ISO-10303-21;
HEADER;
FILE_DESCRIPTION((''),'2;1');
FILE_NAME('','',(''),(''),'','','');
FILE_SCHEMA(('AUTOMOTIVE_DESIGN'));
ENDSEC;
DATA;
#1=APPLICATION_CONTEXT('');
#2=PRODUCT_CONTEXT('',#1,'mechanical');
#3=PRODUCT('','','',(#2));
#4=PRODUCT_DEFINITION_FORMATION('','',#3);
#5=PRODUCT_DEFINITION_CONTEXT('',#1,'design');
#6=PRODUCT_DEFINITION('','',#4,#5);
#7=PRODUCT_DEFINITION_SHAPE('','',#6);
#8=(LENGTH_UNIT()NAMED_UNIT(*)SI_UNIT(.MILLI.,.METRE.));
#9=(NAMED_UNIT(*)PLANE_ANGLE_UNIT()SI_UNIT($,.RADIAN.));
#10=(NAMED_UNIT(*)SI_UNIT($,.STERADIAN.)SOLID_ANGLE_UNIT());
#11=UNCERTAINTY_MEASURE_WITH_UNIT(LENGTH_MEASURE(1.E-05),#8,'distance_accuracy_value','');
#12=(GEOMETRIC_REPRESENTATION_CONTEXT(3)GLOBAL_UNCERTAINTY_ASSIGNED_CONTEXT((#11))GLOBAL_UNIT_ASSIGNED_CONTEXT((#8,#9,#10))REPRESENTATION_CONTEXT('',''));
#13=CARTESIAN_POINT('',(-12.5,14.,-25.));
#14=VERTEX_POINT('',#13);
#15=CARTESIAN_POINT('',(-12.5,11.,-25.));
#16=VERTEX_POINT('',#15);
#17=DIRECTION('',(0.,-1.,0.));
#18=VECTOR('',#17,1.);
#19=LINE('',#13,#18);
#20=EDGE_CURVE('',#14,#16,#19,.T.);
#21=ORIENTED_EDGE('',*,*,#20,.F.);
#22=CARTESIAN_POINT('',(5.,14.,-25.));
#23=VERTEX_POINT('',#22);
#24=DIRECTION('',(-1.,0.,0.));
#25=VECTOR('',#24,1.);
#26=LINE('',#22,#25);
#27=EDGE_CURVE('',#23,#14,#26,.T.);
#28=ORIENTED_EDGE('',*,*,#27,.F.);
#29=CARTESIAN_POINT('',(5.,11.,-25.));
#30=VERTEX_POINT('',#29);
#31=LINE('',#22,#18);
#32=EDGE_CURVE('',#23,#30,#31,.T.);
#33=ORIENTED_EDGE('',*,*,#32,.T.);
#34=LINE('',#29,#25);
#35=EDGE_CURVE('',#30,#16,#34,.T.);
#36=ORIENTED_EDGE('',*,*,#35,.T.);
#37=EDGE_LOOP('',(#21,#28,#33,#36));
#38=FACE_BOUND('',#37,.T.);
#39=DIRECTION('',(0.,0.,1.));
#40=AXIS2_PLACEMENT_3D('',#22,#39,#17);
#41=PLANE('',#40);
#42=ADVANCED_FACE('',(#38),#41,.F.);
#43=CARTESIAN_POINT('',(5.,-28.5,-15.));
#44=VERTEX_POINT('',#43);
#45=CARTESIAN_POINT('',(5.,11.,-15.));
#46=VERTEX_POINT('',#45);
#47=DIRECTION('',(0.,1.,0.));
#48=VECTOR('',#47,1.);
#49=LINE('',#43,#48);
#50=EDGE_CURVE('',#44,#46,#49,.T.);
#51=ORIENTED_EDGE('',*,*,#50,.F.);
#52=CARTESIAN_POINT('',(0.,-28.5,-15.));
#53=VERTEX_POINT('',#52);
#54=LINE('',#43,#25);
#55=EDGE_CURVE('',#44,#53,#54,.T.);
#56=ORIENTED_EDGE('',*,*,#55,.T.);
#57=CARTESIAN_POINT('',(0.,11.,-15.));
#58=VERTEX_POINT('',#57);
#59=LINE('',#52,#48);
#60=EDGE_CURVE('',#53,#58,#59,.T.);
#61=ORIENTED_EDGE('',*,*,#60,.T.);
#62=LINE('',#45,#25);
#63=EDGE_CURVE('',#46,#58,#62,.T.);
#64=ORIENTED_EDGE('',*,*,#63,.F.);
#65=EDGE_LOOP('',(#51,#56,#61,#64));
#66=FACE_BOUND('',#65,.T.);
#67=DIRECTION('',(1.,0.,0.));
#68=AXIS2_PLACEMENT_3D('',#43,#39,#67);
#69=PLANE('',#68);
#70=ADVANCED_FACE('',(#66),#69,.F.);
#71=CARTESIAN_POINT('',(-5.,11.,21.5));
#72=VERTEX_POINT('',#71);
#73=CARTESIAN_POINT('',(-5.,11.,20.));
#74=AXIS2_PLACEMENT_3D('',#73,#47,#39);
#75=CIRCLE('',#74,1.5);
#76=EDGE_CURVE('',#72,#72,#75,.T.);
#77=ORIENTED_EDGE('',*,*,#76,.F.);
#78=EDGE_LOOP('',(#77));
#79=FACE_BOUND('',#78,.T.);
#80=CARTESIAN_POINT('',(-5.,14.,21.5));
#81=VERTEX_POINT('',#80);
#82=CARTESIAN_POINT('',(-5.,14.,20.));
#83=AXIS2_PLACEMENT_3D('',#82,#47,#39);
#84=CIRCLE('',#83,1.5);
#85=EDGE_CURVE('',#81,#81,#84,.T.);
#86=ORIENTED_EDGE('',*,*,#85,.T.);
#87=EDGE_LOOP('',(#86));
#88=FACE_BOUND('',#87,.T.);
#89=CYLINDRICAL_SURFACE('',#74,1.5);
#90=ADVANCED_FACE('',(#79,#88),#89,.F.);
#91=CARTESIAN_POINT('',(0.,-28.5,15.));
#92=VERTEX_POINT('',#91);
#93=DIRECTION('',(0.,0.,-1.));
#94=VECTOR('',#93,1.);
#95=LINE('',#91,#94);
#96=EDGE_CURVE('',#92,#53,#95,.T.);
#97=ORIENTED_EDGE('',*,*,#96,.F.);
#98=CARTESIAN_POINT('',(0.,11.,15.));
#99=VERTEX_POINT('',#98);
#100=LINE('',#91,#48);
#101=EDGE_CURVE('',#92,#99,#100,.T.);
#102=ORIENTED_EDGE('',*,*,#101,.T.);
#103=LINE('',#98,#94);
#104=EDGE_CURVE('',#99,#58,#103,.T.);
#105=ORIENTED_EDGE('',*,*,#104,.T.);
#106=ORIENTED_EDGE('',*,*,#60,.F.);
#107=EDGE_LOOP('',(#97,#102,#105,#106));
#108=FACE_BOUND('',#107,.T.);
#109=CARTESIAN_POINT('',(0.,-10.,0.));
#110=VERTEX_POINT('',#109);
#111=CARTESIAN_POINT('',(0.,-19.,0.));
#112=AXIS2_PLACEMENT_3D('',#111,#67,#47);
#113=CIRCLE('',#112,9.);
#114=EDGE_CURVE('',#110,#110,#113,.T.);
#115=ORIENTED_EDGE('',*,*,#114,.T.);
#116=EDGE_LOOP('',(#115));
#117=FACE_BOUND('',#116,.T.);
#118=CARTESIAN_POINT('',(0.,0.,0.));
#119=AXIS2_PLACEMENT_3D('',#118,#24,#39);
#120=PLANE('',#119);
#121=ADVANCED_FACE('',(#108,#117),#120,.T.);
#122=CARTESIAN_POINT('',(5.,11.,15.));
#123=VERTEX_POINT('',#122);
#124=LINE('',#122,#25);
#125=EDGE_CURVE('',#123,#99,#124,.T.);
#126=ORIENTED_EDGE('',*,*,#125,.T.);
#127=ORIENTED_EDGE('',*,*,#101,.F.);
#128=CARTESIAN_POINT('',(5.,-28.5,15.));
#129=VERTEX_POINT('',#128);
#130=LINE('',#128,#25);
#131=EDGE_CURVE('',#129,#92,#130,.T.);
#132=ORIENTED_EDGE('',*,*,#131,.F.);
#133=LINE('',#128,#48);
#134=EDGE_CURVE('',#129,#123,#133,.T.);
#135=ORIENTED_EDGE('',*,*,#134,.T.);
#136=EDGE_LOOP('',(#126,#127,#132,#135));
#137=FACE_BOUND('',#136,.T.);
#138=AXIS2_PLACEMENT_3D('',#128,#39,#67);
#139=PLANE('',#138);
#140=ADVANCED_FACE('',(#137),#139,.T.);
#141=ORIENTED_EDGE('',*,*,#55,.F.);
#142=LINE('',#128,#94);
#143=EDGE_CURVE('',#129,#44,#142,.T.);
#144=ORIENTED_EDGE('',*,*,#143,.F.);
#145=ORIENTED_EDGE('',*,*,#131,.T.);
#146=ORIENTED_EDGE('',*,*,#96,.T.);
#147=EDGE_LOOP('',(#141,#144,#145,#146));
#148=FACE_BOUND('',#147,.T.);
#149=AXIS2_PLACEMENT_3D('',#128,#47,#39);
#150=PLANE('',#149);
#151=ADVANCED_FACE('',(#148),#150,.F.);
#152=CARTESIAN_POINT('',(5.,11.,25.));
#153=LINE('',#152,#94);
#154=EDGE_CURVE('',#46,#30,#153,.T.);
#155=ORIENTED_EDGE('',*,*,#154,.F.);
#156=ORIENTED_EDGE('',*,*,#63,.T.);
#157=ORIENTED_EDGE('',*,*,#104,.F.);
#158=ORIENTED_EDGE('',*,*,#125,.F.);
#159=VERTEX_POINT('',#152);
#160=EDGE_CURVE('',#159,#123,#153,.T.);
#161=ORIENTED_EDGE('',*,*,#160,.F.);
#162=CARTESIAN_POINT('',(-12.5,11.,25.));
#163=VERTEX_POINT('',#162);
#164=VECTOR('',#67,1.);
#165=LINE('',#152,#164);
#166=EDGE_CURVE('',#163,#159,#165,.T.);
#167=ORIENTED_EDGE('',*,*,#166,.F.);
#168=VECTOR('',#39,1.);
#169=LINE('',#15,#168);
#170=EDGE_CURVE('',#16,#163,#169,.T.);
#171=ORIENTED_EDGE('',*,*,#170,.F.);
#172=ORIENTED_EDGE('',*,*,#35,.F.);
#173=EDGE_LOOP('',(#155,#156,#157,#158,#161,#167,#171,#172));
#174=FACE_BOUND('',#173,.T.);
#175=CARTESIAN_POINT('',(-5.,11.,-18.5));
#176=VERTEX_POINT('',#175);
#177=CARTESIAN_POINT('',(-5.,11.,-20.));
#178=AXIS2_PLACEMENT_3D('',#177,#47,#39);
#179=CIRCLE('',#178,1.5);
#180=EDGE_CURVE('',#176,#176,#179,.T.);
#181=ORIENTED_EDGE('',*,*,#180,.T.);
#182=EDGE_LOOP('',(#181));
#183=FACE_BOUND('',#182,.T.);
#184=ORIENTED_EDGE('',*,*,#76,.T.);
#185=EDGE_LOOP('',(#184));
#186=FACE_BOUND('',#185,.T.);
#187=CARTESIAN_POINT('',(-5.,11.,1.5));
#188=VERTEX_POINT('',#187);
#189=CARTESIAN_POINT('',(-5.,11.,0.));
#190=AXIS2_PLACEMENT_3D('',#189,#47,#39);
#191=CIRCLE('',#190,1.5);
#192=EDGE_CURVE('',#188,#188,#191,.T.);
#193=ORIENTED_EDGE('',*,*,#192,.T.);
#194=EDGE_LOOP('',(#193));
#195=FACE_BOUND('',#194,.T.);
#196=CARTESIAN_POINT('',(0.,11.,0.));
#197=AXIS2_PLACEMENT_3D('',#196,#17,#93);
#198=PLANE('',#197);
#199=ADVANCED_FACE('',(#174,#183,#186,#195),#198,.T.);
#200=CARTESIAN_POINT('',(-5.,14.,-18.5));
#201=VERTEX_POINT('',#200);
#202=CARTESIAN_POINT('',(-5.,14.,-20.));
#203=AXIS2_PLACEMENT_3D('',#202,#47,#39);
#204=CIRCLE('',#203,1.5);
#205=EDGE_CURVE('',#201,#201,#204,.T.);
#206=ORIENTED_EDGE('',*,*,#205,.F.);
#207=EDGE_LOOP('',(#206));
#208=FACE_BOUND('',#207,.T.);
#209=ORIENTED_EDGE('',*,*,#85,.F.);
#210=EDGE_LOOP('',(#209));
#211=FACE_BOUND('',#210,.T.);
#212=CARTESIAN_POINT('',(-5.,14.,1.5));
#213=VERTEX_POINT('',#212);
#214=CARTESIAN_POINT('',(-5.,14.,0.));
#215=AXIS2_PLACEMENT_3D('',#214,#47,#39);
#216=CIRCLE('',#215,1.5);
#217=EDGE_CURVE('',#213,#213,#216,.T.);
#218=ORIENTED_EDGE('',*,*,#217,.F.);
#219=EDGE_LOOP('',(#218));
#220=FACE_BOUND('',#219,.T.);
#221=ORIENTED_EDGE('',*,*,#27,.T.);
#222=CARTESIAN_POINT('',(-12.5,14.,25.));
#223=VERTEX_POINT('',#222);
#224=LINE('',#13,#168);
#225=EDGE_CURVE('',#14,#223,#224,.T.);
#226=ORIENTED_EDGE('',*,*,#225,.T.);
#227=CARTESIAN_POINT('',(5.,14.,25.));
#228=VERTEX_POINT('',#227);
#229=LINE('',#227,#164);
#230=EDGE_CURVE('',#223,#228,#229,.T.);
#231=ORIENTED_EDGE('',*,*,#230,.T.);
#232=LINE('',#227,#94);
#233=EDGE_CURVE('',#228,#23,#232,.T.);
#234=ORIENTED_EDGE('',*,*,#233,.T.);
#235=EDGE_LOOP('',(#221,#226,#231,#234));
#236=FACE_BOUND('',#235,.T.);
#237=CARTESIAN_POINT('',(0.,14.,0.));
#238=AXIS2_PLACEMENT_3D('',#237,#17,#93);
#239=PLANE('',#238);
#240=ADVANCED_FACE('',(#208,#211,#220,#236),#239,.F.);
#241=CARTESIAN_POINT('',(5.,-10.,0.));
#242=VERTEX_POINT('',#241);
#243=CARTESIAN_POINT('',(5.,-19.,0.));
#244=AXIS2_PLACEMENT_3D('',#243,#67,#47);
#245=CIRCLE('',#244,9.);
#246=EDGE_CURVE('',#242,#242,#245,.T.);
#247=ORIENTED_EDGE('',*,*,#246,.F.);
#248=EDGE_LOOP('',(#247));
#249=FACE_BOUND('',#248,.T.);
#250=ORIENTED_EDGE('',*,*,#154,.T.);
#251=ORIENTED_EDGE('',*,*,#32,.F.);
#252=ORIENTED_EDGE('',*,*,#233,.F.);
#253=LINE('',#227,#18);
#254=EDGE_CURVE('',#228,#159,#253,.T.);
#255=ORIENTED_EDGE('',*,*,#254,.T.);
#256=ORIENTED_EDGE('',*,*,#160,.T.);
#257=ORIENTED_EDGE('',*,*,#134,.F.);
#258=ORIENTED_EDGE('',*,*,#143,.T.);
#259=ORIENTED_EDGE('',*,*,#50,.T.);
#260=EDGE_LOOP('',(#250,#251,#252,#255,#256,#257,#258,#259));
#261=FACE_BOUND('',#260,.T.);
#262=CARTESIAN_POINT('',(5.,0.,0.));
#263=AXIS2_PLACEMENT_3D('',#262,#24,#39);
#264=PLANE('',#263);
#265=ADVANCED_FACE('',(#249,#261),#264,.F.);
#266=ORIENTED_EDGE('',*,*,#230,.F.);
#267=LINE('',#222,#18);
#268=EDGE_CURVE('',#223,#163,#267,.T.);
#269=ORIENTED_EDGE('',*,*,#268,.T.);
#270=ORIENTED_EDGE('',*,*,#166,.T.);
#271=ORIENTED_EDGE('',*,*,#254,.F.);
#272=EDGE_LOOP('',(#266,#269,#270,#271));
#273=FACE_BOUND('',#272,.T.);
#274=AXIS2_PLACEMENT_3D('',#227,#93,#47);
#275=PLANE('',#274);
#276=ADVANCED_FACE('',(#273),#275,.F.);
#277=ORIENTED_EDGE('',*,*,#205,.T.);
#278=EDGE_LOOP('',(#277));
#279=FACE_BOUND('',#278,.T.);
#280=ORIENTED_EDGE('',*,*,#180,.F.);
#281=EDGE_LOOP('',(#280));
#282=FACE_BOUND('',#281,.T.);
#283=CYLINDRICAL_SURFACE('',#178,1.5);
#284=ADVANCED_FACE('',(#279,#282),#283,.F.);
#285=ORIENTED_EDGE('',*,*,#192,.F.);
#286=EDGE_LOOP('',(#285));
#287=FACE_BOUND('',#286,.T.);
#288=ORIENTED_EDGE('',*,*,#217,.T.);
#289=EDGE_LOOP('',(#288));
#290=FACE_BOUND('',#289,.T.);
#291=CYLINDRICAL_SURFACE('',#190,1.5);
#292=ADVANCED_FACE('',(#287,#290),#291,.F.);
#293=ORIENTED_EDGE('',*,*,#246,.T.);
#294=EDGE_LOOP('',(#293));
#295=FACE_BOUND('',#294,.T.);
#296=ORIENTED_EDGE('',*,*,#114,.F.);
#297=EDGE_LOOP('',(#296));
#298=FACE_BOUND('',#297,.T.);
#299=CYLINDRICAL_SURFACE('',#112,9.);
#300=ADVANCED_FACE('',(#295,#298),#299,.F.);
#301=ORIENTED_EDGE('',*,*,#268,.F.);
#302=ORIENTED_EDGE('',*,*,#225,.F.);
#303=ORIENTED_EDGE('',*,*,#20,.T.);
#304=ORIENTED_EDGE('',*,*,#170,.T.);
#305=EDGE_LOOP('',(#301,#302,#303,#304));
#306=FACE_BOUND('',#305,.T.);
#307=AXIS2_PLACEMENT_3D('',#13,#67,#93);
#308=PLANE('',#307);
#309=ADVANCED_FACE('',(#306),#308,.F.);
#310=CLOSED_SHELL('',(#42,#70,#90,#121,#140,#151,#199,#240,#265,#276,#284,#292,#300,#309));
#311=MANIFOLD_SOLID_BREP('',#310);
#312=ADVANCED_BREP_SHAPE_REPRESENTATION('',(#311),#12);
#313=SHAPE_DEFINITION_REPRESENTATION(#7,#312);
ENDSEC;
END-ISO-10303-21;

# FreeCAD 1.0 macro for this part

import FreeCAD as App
import Part
import Sketcher
Q = App.Units.Quantity


def add_polygon(sketch, points):
    """Adds a closed chain of lines whose ends are joined by coincident constraints."""
    first, n = sketch.GeometryCount, len(points)
    for a, b in zip(points, points[1:] + points[:1]):
        sketch.addGeometry(Part.LineSegment(App.Vector(*a, 0), App.Vector(*b, 0)), False)
    for i in range(n):
        sketch.addConstraint(Sketcher.Constraint("Coincident", first + i, 2, first + (i + 1) % n, 1))

doc = App.newDocument("Part")
params = doc.addObject("Spreadsheet::Sheet", "Params")
for row, (alias, value) in enumerate([
    ("sketch1_height", "30 mm"),
    ("sketch1_width", "39.5 mm"),
    ("pad1_length", "5 mm"),
    ("sketch2_diameter", "18 mm"),
    ("pocket1_length", "5 mm"),
    ("sketch3_height", "50 mm"),
    ("sketch3_width", "17.5 mm"),
    ("pad2_length", "3 mm"),
    ("sketch4_diameter", "3 mm"),
    ("pocket2_length", "3 mm"),
], start=1):
    params.set(f"A{row}", alias)
    params.set(f"B{row}", "=" + value)
    params.setAlias(f"B{row}", alias)

body = doc.addObject("PartDesign::Body", "Body")

# Sketch on YZ plane
sketch1 = body.newObject("Sketcher::SketchObject", "Sketch")
sketch1.AttachmentSupport = (doc.getObject("YZ_Plane"), [""])
sketch1.MapMode = "FlatFace"
add_polygon(sketch1, [(11, 15), (-28, 15), (-28, -15), (11, -15)])  # lines 0-3
sketch1.addConstraint([
    Sketcher.Constraint("Horizontal", 0),
    Sketcher.Constraint("Vertical", 1),
    Sketcher.Constraint("Horizontal", 2),
    Sketcher.Constraint("Vertical", 3),
    Sketcher.Constraint("DistanceY", 1, 2, 1, 1, Q("30 mm")),
    Sketcher.Constraint("DistanceX", 0, 2, 0, 1, Q("39.5 mm")),
    Sketcher.Constraint("DistanceY", -1, 1, 0, 2, Q("15 mm")),
    Sketcher.Constraint("DistanceX", -1, 1, 2, 2, Q("11 mm")),
])
sketch1.setExpression("Constraints[8]", "Params.sketch1_height")
sketch1.setExpression("Constraints[9]", "Params.sketch1_width")
pad1 = body.newObject("PartDesign::Pad", "Pad")
pad1.Profile = sketch1
pad1.setExpression("Length", "Params.pad1_length")

# Sketch on YZ plane
sketch2 = body.newObject("Sketcher::SketchObject", "Sketch001")
sketch2.AttachmentSupport = (doc.getObject("YZ_Plane"), [""])
sketch2.MapMode = "FlatFace"
sketch2.AttachmentOffset = App.Placement(App.Vector(0, 0, 5), App.Rotation())
sketch2.addGeometry(Part.Circle(App.Vector(-19, 0, 0), App.Vector(0, 0, 1), 9), False)
sketch2.addConstraint([
    Sketcher.Constraint("PointOnObject", 0, 3, -1),
    Sketcher.Constraint("Diameter", 0, Q("18 mm")),
    Sketcher.Constraint("DistanceX", 0, 3, -1, 1, Q("19 mm")),
])
sketch2.setExpression("Constraints[1]", "Params.sketch2_diameter")
pocket1 = body.newObject("PartDesign::Pocket", "Pocket")
pocket1.Profile = sketch2
pocket1.setExpression("Length", "Params.pocket1_length")

# Sketch on XZ plane
sketch3 = body.newObject("Sketcher::SketchObject", "Sketch002")
sketch3.AttachmentSupport = (doc.getObject("XZ_Plane"), [""])
sketch3.MapMode = "FlatFace"
sketch3.AttachmentOffset = App.Placement(App.Vector(0, 0, -11), App.Rotation())
add_polygon(sketch3, [(-12, -25), (-12, 25), (5, 25), (5, -25)])  # lines 0-3
sketch3.addConstraint([
    Sketcher.Constraint("Vertical", 0),
    Sketcher.Constraint("Horizontal", 1),
    Sketcher.Constraint("Vertical", 2),
    Sketcher.Constraint("Horizontal", 3),
    Sketcher.Constraint("DistanceY", 0, 1, 0, 2, Q("50 mm")),
    Sketcher.Constraint("DistanceX", 1, 1, 1, 2, Q("17.5 mm")),
    Sketcher.Constraint("DistanceY", -1, 1, 0, 2, Q("25 mm")),
    Sketcher.Constraint("DistanceX", -1, 1, 1, 2, Q("5 mm")),
])
sketch3.setExpression("Constraints[8]", "Params.sketch3_height")
sketch3.setExpression("Constraints[9]", "Params.sketch3_width")
pad2 = body.newObject("PartDesign::Pad", "Pad001")
pad2.Profile = sketch3
pad2.setExpression("Length", "Params.pad2_length")
pad2.Reversed = True

# Sketch on XZ plane
sketch4 = body.newObject("Sketcher::SketchObject", "Sketch003")
sketch4.AttachmentSupport = (doc.getObject("XZ_Plane"), [""])
sketch4.MapMode = "FlatFace"
sketch4.AttachmentOffset = App.Placement(App.Vector(0, 0, -14), App.Rotation())
sketch4.addGeometry([
    Part.Circle(App.Vector(-5, 0, 0), App.Vector(0, 0, 1), 1.5),
    Part.Circle(App.Vector(-5, -20, 0), App.Vector(0, 0, 1), 1.5),
    Part.Circle(App.Vector(-5, 20, 0), App.Vector(0, 0, 1), 1.5),
], False)
sketch4.addConstraint([
    Sketcher.Constraint("Equal", 0, 1),
    Sketcher.Constraint("Equal", 1, 2),
    Sketcher.Constraint("Symmetric", 1, 3, 2, 3, -1),
    Sketcher.Constraint("PointOnObject", 0, 3, -1),
    Sketcher.Constraint("Vertical", 0, 3, 1, 3),
    Sketcher.Constraint("Diameter", 0, Q("3 mm")),
    Sketcher.Constraint("DistanceX", 0, 3, -1, 1, Q("5 mm")),
    Sketcher.Constraint("DistanceY", 1, 3, -1, 1, Q("20 mm")),
])
sketch4.setExpression("Constraints[5]", "Params.sketch4_diameter")
pocket2 = body.newObject("PartDesign::Pocket", "Pocket001")
pocket2.Profile = sketch4
pocket2.setExpression("Length", "Params.pocket2_length")
pocket2.Reversed = True

doc.recompute()
